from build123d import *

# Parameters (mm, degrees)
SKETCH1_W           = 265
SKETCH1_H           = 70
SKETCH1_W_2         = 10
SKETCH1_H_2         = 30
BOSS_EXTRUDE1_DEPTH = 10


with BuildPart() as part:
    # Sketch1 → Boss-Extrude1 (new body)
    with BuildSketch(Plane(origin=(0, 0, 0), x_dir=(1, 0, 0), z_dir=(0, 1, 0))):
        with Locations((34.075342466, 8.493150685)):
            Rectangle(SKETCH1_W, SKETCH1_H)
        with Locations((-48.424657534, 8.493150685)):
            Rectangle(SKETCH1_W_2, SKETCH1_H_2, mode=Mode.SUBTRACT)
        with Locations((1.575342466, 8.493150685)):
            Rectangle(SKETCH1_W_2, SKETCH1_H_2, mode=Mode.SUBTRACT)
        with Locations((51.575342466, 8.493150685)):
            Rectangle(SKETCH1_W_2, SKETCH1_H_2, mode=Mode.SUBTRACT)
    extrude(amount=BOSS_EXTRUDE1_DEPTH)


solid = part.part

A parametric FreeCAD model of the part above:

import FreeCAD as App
import Part
import Sketcher

V = App.Vector
Q = App.Units.Quantity

doc = App.newDocument("Part")
params = doc.addObject("Spreadsheet::Sheet", "Params")
for row, (alias, value) in enumerate([
    ("sketch1_width", "265 mm"),
    ("sketch1_width2", "10 mm"),
    ("sketch1_height", "70 mm"),
    ("sketch1_height2", "30 mm"),
    ("pad1_length", "10 mm"),
], start=1):
    params.set(f"A{row}", alias)
    params.set(f"B{row}", "=" + value)
    params.setAlias(f"B{row}", alias)

body = doc.addObject("PartDesign::Body", "Body")

# Sketch on XZ plane
sketch1 = body.newObject("Sketcher::SketchObject", "Sketch")
sketch1.AttachmentSupport = (doc.getObject("XZ_Plane"), [""])
sketch1.MapMode = "FlatFace"
sketch1.addGeometry(Part.LineSegment(V(-98, -43, 0), V(-98, 27, 0)), False)
sketch1.addGeometry(Part.LineSegment(V(-98, 27, 0), V(167, 27, 0)), False)
sketch1.addGeometry(Part.LineSegment(V(167, 27, 0), V(167, -43, 0)), False)
sketch1.addGeometry(Part.LineSegment(V(167, -43, 0), V(-98, -43, 0)), False)
sketch1.addGeometry(Part.LineSegment(V(-43, 7, 0), V(-53, 7, 0)), False)
sketch1.addGeometry(Part.LineSegment(V(-53, 7, 0), V(-53, -23, 0)), False)
sketch1.addGeometry(Part.LineSegment(V(-53, -23, 0), V(-43, -23, 0)), False)
sketch1.addGeometry(Part.LineSegment(V(-43, -23, 0), V(-43, 7, 0)), False)
sketch1.addGeometry(Part.LineSegment(V(7, 7, 0), V(-3, 7, 0)), False)
sketch1.addGeometry(Part.LineSegment(V(-3, 7, 0), V(-3, -23, 0)), False)
sketch1.addGeometry(Part.LineSegment(V(-3, -23, 0), V(7, -23, 0)), False)
sketch1.addGeometry(Part.LineSegment(V(7, -23, 0), V(7, 7, 0)), False)
sketch1.addGeometry(Part.LineSegment(V(57, 7, 0), V(47, 7, 0)), False)
sketch1.addGeometry(Part.LineSegment(V(47, 7, 0), V(47, -23, 0)), False)
sketch1.addGeometry(Part.LineSegment(V(47, -23, 0), V(57, -23, 0)), False)
sketch1.addGeometry(Part.LineSegment(V(57, -23, 0), V(57, 7, 0)), False)
sketch1.addConstraint(Sketcher.Constraint("Coincident", 0, 2, 1, 1))
sketch1.addConstraint(Sketcher.Constraint("Coincident", 1, 2, 2, 1))
sketch1.addConstraint(Sketcher.Constraint("Coincident", 2, 2, 3, 1))
sketch1.addConstraint(Sketcher.Constraint("Coincident", 3, 2, 0, 1))
sketch1.addConstraint(Sketcher.Constraint("Coincident", 4, 2, 5, 1))
sketch1.addConstraint(Sketcher.Constraint("Coincident", 5, 2, 6, 1))
sketch1.addConstraint(Sketcher.Constraint("Coincident", 6, 2, 7, 1))
sketch1.addConstraint(Sketcher.Constraint("Coincident", 7, 2, 4, 1))
sketch1.addConstraint(Sketcher.Constraint("Coincident", 8, 2, 9, 1))
sketch1.addConstraint(Sketcher.Constraint("Coincident", 9, 2, 10, 1))
sketch1.addConstraint(Sketcher.Constraint("Coincident", 10, 2, 11, 1))
sketch1.addConstraint(Sketcher.Constraint("Coincident", 11, 2, 8, 1))
sketch1.addConstraint(Sketcher.Constraint("Coincident", 12, 2, 13, 1))
sketch1.addConstraint(Sketcher.Constraint("Coincident", 13, 2, 14, 1))
sketch1.addConstraint(Sketcher.Constraint("Coincident", 14, 2, 15, 1))
sketch1.addConstraint(Sketcher.Constraint("Coincident", 15, 2, 12, 1))
sketch1.addConstraint(Sketcher.Constraint("Vertical", 0))
sketch1.addConstraint(Sketcher.Constraint("Horizontal", 1))
sketch1.addConstraint(Sketcher.Constraint("Vertical", 2))
sketch1.addConstraint(Sketcher.Constraint("Horizontal", 3))
sketch1.addConstraint(Sketcher.Constraint("Horizontal", 4))
sketch1.addConstraint(Sketcher.Constraint("Vertical", 5))
sketch1.addConstraint(Sketcher.Constraint("Horizontal", 6))
sketch1.addConstraint(Sketcher.Constraint("Vertical", 7))
sketch1.addConstraint(Sketcher.Constraint("Horizontal", 8))
sketch1.addConstraint(Sketcher.Constraint("Vertical", 9))
sketch1.addConstraint(Sketcher.Constraint("Horizontal", 10))
sketch1.addConstraint(Sketcher.Constraint("Vertical", 11))
sketch1.addConstraint(Sketcher.Constraint("Horizontal", 12))
sketch1.addConstraint(Sketcher.Constraint("Vertical", 13))
sketch1.addConstraint(Sketcher.Constraint("Horizontal", 14))
sketch1.addConstraint(Sketcher.Constraint("Vertical", 15))
sketch1.addConstraint(Sketcher.Constraint("Horizontal", 7, 2, 8, 2))
sketch1.addConstraint(Sketcher.Constraint("Horizontal", 6, 2, 9, 2))
sketch1.addConstraint(Sketcher.Constraint("Horizontal", 11, 2, 12, 2))
sketch1.addConstraint(Sketcher.Constraint("Horizontal", 10, 2, 13, 2))
sketch1.addConstraint(Sketcher.Constraint("Equal", 6, 8))
sketch1.addConstraint(Sketcher.Constraint("Equal", 10, 12))
sketch1.addConstraint(Sketcher.Constraint("DistanceX", 1, 1, 1, 2, Q("265 mm")))
sketch1.addConstraint(Sketcher.Constraint("DistanceX", 4, 2, 4, 1, Q("10 mm")))
sketch1.addConstraint(Sketcher.Constraint("DistanceY", 0, 1, 0, 2, Q("70 mm")))
sketch1.addConstraint(Sketcher.Constraint("DistanceY", 5, 2, 5, 1, Q("30 mm")))
sketch1.addConstraint(Sketcher.Constraint("DistanceX", 0, 2, 4, 2, Q("45 mm")))
sketch1.addConstraint(Sketcher.Constraint("DistanceY", 4, 2, 0, 2, Q("20 mm")))
sketch1.addConstraint(Sketcher.Constraint("DistanceX", 7, 2, 8, 2, Q("40 mm")))
sketch1.addConstraint(Sketcher.Constraint("DistanceX", 11, 2, 12, 2, Q("40 mm")))
sketch1.addConstraint(Sketcher.Constraint("DistanceY", -1, 1, 0, 2, Q("26.506849 mm")))
sketch1.addConstraint(Sketcher.Constraint("DistanceX", 0, 2, -1, 1, Q("98.424658 mm")))
sketch1.setExpression("Constraints[38]", "Params.sketch1_width")
sketch1.setExpression("Constraints[39]", "Params.sketch1_width2")
sketch1.setExpression("Constraints[40]", "Params.sketch1_height")
sketch1.setExpression("Constraints[41]", "Params.sketch1_height2")
pad1 = body.newObject("PartDesign::Pad", "Pad")
pad1.Profile = sketch1
pad1.setExpression("Length", "Params.pad1_length")
pad1.Reversed = True

doc.recompute()
